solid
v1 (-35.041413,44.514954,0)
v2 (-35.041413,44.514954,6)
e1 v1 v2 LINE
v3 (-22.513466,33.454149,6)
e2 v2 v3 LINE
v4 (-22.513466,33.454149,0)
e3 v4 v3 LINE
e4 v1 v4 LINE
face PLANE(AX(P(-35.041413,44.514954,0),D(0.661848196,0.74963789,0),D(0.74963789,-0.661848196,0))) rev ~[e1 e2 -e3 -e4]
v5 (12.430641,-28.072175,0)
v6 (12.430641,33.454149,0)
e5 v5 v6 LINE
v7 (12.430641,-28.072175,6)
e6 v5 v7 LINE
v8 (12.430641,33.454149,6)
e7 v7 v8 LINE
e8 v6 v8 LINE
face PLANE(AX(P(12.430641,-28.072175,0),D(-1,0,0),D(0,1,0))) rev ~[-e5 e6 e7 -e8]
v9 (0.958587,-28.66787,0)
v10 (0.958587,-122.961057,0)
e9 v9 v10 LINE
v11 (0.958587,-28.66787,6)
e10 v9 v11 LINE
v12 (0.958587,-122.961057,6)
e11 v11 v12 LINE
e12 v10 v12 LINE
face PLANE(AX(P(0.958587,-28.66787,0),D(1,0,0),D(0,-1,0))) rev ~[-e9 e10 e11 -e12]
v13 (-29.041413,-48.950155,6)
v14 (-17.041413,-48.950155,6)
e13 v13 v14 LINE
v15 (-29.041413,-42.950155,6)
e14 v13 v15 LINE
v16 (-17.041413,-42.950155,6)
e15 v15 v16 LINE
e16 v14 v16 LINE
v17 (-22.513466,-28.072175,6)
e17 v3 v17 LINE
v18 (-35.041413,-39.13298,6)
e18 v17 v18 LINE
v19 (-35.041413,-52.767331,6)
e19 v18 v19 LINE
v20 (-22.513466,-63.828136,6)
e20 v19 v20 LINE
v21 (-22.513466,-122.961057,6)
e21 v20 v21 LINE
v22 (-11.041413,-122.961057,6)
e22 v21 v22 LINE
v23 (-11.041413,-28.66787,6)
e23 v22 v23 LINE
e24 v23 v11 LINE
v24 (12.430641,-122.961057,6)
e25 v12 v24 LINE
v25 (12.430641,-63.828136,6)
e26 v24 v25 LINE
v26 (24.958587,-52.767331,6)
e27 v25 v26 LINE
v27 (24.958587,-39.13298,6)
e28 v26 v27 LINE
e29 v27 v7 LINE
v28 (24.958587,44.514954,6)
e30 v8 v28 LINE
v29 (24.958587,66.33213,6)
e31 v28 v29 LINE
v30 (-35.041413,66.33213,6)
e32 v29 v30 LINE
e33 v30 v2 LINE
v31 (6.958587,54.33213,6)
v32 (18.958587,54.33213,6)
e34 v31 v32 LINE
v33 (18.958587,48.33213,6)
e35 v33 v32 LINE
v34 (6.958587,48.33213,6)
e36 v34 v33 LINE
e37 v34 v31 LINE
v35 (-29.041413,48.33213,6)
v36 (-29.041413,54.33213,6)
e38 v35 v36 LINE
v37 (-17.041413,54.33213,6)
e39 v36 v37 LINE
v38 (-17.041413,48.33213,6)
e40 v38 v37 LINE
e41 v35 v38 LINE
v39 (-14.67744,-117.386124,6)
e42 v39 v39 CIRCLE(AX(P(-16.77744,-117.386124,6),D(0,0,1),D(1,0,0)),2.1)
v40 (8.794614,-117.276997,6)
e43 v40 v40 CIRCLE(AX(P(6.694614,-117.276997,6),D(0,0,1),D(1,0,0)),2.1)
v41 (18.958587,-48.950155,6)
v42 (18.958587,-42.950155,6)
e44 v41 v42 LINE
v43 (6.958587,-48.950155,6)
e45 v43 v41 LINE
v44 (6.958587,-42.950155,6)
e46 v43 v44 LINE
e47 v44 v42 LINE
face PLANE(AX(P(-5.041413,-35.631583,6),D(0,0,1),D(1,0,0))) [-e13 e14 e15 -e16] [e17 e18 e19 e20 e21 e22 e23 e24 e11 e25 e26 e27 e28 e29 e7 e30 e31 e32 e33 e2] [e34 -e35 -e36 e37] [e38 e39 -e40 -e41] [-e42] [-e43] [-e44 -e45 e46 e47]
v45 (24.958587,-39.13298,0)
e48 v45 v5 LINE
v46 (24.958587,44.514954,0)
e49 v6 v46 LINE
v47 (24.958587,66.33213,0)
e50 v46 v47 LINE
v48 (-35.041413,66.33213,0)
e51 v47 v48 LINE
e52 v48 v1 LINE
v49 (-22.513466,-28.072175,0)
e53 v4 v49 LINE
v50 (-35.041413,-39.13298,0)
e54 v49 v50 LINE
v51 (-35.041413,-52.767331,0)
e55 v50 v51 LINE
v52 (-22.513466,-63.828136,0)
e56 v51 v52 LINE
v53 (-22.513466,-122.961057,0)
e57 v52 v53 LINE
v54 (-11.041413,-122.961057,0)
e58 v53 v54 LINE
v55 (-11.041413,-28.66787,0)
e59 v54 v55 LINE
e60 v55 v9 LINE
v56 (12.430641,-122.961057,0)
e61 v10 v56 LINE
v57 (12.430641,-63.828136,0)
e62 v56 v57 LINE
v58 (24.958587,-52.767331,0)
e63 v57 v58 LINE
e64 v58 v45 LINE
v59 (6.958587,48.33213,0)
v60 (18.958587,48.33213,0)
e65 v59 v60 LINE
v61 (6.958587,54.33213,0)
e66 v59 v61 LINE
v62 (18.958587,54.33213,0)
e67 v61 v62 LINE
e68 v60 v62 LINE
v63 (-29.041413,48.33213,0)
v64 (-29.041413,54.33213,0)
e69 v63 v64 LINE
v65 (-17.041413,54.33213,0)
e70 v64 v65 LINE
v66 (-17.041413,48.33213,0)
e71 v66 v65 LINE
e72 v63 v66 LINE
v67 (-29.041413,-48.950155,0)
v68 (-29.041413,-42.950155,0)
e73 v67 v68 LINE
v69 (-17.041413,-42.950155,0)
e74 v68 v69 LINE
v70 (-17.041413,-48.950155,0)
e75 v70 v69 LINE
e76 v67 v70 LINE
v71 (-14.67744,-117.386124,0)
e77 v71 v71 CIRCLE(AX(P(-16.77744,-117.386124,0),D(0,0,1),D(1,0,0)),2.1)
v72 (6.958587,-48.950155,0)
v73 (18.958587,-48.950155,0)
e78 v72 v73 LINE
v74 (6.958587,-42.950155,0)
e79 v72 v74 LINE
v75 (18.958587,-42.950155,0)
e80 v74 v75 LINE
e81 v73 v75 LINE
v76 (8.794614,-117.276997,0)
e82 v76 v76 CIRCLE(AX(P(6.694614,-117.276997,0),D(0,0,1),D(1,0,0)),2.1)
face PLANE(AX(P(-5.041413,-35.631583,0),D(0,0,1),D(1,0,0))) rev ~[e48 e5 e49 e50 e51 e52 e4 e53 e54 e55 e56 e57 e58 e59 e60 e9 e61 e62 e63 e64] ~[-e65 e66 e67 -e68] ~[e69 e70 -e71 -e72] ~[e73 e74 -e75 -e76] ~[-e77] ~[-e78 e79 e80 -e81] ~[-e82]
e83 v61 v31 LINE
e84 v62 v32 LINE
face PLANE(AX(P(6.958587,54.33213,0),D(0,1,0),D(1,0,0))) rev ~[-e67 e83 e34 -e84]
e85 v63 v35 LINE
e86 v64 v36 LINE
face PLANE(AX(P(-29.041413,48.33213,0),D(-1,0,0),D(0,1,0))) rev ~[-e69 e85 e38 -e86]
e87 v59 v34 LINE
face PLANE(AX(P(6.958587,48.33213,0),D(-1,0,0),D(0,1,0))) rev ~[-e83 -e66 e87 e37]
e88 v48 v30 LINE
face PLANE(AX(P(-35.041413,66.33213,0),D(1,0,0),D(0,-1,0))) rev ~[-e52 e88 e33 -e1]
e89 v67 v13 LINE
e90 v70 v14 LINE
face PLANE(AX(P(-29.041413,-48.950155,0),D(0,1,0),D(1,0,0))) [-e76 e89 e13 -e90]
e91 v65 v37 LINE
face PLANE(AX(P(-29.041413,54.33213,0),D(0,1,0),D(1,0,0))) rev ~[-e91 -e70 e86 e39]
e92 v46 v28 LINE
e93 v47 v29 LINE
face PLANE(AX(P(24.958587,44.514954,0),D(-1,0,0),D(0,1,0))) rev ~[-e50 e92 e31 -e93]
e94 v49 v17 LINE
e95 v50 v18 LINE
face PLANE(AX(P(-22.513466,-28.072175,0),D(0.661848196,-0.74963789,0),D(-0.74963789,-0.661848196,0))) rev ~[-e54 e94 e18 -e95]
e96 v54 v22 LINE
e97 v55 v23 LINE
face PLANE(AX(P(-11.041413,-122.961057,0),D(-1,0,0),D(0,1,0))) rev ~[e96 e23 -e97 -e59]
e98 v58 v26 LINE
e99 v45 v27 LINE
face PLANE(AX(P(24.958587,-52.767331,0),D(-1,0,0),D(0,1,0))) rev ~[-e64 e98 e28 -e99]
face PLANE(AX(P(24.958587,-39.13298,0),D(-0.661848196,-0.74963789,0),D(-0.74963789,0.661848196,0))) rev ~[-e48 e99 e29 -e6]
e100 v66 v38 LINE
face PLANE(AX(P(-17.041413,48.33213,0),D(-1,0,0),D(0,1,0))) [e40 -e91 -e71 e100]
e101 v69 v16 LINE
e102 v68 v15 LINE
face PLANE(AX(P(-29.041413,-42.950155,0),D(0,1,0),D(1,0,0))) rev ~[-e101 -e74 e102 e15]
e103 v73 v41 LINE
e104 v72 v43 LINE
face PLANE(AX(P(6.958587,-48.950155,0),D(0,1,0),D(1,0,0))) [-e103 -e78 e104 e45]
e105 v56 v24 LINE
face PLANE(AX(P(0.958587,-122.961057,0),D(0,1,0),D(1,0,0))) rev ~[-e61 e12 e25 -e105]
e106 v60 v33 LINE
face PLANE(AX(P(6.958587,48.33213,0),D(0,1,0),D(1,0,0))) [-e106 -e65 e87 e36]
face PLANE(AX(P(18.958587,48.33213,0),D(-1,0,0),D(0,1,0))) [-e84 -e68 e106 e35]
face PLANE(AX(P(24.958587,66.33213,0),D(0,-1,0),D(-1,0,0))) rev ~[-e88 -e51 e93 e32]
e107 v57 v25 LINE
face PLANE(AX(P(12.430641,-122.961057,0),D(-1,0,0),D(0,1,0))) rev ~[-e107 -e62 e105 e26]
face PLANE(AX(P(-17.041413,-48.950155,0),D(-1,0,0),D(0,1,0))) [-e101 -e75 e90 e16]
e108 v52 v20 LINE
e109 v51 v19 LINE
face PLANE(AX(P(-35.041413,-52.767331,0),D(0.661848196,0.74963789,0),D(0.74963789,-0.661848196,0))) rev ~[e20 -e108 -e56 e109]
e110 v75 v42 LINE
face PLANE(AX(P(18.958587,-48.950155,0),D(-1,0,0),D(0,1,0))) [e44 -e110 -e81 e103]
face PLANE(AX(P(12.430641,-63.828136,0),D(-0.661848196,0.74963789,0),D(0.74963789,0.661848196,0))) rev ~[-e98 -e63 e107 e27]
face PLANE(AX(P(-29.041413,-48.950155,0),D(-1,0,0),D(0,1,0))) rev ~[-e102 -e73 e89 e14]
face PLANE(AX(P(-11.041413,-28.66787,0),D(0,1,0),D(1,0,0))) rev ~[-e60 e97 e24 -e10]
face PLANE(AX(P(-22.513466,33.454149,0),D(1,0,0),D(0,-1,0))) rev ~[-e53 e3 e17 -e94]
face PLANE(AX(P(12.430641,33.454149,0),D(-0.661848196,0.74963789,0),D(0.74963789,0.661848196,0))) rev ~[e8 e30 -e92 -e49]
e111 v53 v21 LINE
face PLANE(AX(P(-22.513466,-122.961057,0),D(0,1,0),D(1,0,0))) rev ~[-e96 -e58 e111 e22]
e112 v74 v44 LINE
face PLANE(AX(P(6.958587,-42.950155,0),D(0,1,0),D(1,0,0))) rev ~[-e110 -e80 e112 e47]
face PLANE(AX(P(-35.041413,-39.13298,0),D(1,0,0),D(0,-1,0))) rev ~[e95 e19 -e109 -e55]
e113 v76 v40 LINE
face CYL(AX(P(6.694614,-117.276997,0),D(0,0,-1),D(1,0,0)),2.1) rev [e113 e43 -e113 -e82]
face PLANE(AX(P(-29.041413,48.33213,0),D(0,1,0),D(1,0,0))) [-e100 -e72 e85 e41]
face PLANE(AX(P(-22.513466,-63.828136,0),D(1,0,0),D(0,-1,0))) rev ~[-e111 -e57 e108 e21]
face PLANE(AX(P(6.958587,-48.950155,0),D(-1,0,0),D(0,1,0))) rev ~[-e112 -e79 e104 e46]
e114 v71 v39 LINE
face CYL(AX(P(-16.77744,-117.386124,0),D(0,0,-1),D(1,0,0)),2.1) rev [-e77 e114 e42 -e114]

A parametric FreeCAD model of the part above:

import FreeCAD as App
import Part
import Sketcher
Q = App.Units.Quantity

doc = App.newDocument("Part")
body = doc.addObject("PartDesign::Body", "Body")

sketch1 = body.newObject("Sketcher::SketchObject", "Sketch")
sketch1.AttachmentSupport = (doc.getObject("XY_Plane"), [""])
sketch1.MapMode = "FlatFace"
sketch1.addGeometry(Part.LineSegment(App.Vector(25, 66.3, 0), App.Vector(-35, 66.3, 0)), False)
sketch1.addGeometry(Part.LineSegment(App.Vector(-35, 66.3, 0), App.Vector(-35, 44.5, 0)), False)
sketch1.addGeometry(Part.LineSegment(App.Vector(-35, 44.5, 0), App.Vector(-22.5, 33.5, 0)), False)
sketch1.addGeometry(Part.LineSegment(App.Vector(-22.5, 33.5, 0), App.Vector(-22.5, -28.1, 0)), False)
sketch1.addGeometry(Part.LineSegment(App.Vector(-22.5, -28.1, 0), App.Vector(-35, -39.1, 0)), False)
sketch1.addGeometry(Part.LineSegment(App.Vector(-35, -39.1, 0), App.Vector(-35, -52.8, 0)), False)
sketch1.addGeometry(Part.LineSegment(App.Vector(-35, -52.8, 0), App.Vector(-22.5, -63.8, 0)), False)
sketch1.addGeometry(Part.LineSegment(App.Vector(-22.5, -63.8, 0), App.Vector(-22.5, -123, 0)), False)
sketch1.addGeometry(Part.LineSegment(App.Vector(-22.5, -123, 0), App.Vector(-11, -123, 0)), False)
sketch1.addGeometry(Part.LineSegment(App.Vector(-11, -123, 0), App.Vector(-11, -28.7, 0)), False)
sketch1.addGeometry(Part.LineSegment(App.Vector(-11, -28.7, 0), App.Vector(1, -28.7, 0)), False)
sketch1.addGeometry(Part.LineSegment(App.Vector(1, -28.7, 0), App.Vector(1, -123, 0)), False)
sketch1.addGeometry(Part.LineSegment(App.Vector(1, -123, 0), App.Vector(12.4, -123, 0)), False)
sketch1.addGeometry(Part.LineSegment(App.Vector(12.4, -123, 0), App.Vector(12.4, -63.8, 0)), False)
sketch1.addGeometry(Part.LineSegment(App.Vector(12.4, -63.8, 0), App.Vector(25, -52.8, 0)), False)
sketch1.addGeometry(Part.LineSegment(App.Vector(25, -52.8, 0), App.Vector(25, -39.1, 0)), False)
sketch1.addGeometry(Part.LineSegment(App.Vector(25, -39.1, 0), App.Vector(12.4, -28.1, 0)), False)
sketch1.addGeometry(Part.LineSegment(App.Vector(12.4, -28.1, 0), App.Vector(12.4, 33.5, 0)), False)
sketch1.addGeometry(Part.LineSegment(App.Vector(12.4, 33.5, 0), App.Vector(25, 44.5, 0)), False)
sketch1.addGeometry(Part.LineSegment(App.Vector(25, 44.5, 0), App.Vector(25, 66.3, 0)), False)
sketch1.addGeometry(Part.Circle(App.Vector(-16.8, -117.4, 0), App.Vector(0, 0, 1), 2.1), False)
sketch1.addGeometry(Part.LineSegment(App.Vector(-17, -49, 0), App.Vector(-29, -49, 0)), False)
sketch1.addGeometry(Part.LineSegment(App.Vector(-29, -49, 0), App.Vector(-29, -43, 0)), False)
sketch1.addGeometry(Part.LineSegment(App.Vector(-29, -43, 0), App.Vector(-17, -43, 0)), False)
sketch1.addGeometry(Part.LineSegment(App.Vector(-17, -43, 0), App.Vector(-17, -49, 0)), False)
sketch1.addGeometry(Part.Circle(App.Vector(6.7, -117.3, 0), App.Vector(0, 0, 1), 2.1), False)
sketch1.addGeometry(Part.LineSegment(App.Vector(19, -49, 0), App.Vector(7, -49, 0)), False)
sketch1.addGeometry(Part.LineSegment(App.Vector(7, -49, 0), App.Vector(7, -43, 0)), False)
sketch1.addGeometry(Part.LineSegment(App.Vector(7, -43, 0), App.Vector(19, -43, 0)), False)
sketch1.addGeometry(Part.LineSegment(App.Vector(19, -43, 0), App.Vector(19, -49, 0)), False)
sketch1.addGeometry(Part.LineSegment(App.Vector(-17, 48.3, 0), App.Vector(-29, 48.3, 0)), False)
sketch1.addGeometry(Part.LineSegment(App.Vector(-29, 48.3, 0), App.Vector(-29, 54.3, 0)), False)
sketch1.addGeometry(Part.LineSegment(App.Vector(-29, 54.3, 0), App.Vector(-17, 54.3, 0)), False)
sketch1.addGeometry(Part.LineSegment(App.Vector(-17, 54.3, 0), App.Vector(-17, 48.3, 0)), False)
sketch1.addGeometry(Part.LineSegment(App.Vector(19, 48.3, 0), App.Vector(7, 48.3, 0)), False)
sketch1.addGeometry(Part.LineSegment(App.Vector(7, 48.3, 0), App.Vector(7, 54.3, 0)), False)
sketch1.addGeometry(Part.LineSegment(App.Vector(7, 54.3, 0), App.Vector(19, 54.3, 0)), False)
sketch1.addGeometry(Part.LineSegment(App.Vector(19, 54.3, 0), App.Vector(19, 48.3, 0)), False)
sketch1.addConstraint(Sketcher.Constraint("Coincident", 0, 2, 1, 1))
sketch1.addConstraint(Sketcher.Constraint("Coincident", 1, 2, 2, 1))
sketch1.addConstraint(Sketcher.Constraint("Coincident", 2, 2, 3, 1))
sketch1.addConstraint(Sketcher.Constraint("Coincident", 3, 2, 4, 1))
sketch1.addConstraint(Sketcher.Constraint("Coincident", 4, 2, 5, 1))
sketch1.addConstraint(Sketcher.Constraint("Coincident", 5, 2, 6, 1))
sketch1.addConstraint(Sketcher.Constraint("Coincident", 6, 2, 7, 1))
sketch1.addConstraint(Sketcher.Constraint("Coincident", 7, 2, 8, 1))
sketch1.addConstraint(Sketcher.Constraint("Coincident", 8, 2, 9, 1))
sketch1.addConstraint(Sketcher.Constraint("Coincident", 9, 2, 10, 1))
sketch1.addConstraint(Sketcher.Constraint("Coincident", 10, 2, 11, 1))
sketch1.addConstraint(Sketcher.Constraint("Coincident", 11, 2, 12, 1))
sketch1.addConstraint(Sketcher.Constraint("Coincident", 12, 2, 13, 1))
sketch1.addConstraint(Sketcher.Constraint("Coincident", 13, 2, 14, 1))
sketch1.addConstraint(Sketcher.Constraint("Coincident", 14, 2, 15, 1))
sketch1.addConstraint(Sketcher.Constraint("Coincident", 15, 2, 16, 1))
sketch1.addConstraint(Sketcher.Constraint("Coincident", 16, 2, 17, 1))
sketch1.addConstraint(Sketcher.Constraint("Coincident", 17, 2, 18, 1))
sketch1.addConstraint(Sketcher.Constraint("Coincident", 18, 2, 19, 1))
sketch1.addConstraint(Sketcher.Constraint("Coincident", 19, 2, 0, 1))
sketch1.addConstraint(Sketcher.Constraint("Coincident", 21, 2, 22, 1))
sketch1.addConstraint(Sketcher.Constraint("Coincident", 22, 2, 23, 1))
sketch1.addConstraint(Sketcher.Constraint("Coincident", 23, 2, 24, 1))
sketch1.addConstraint(Sketcher.Constraint("Coincident", 24, 2, 21, 1))
sketch1.addConstraint(Sketcher.Constraint("Coincident", 26, 2, 27, 1))
sketch1.addConstraint(Sketcher.Constraint("Coincident", 27, 2, 28, 1))
sketch1.addConstraint(Sketcher.Constraint("Coincident", 28, 2, 29, 1))
sketch1.addConstraint(Sketcher.Constraint("Coincident", 29, 2, 26, 1))
sketch1.addConstraint(Sketcher.Constraint("Coincident", 30, 2, 31, 1))
sketch1.addConstraint(Sketcher.Constraint("Coincident", 31, 2, 32, 1))
sketch1.addConstraint(Sketcher.Constraint("Coincident", 32, 2, 33, 1))
sketch1.addConstraint(Sketcher.Constraint("Coincident", 33, 2, 30, 1))
sketch1.addConstraint(Sketcher.Constraint("Coincident", 34, 2, 35, 1))
sketch1.addConstraint(Sketcher.Constraint("Coincident", 35, 2, 36, 1))
sketch1.addConstraint(Sketcher.Constraint("Coincident", 36, 2, 37, 1))
sketch1.addConstraint(Sketcher.Constraint("Coincident", 37, 2, 34, 1))
sketch1.addConstraint(Sketcher.Constraint("Horizontal", 0))
sketch1.addConstraint(Sketcher.Constraint("Vertical", 1))
sketch1.addConstraint(Sketcher.Constraint("Vertical", 3))
sketch1.addConstraint(Sketcher.Constraint("Vertical", 5))
sketch1.addConstraint(Sketcher.Constraint("Vertical", 7))
sketch1.addConstraint(Sketcher.Constraint("Horizontal", 8))
sketch1.addConstraint(Sketcher.Constraint("Vertical", 9))
sketch1.addConstraint(Sketcher.Constraint("Horizontal", 10))
sketch1.addConstraint(Sketcher.Constraint("Vertical", 11))
sketch1.addConstraint(Sketcher.Constraint("Horizontal", 12))
sketch1.addConstraint(Sketcher.Constraint("Vertical", 13))
sketch1.addConstraint(Sketcher.Constraint("Vertical", 15))
sketch1.addConstraint(Sketcher.Constraint("Vertical", 17))
sketch1.addConstraint(Sketcher.Constraint("Vertical", 19))
sketch1.addConstraint(Sketcher.Constraint("Horizontal", 21))
sketch1.addConstraint(Sketcher.Constraint("Vertical", 22))
sketch1.addConstraint(Sketcher.Constraint("Horizontal", 23))
sketch1.addConstraint(Sketcher.Constraint("Vertical", 24))
sketch1.addConstraint(Sketcher.Constraint("Horizontal", 26))
sketch1.addConstraint(Sketcher.Constraint("Vertical", 27))
sketch1.addConstraint(Sketcher.Constraint("Horizontal", 28))
sketch1.addConstraint(Sketcher.Constraint("Vertical", 29))
sketch1.addConstraint(Sketcher.Constraint("Horizontal", 30))
sketch1.addConstraint(Sketcher.Constraint("Vertical", 31))
sketch1.addConstraint(Sketcher.Constraint("Horizontal", 32))
sketch1.addConstraint(Sketcher.Constraint("Vertical", 33))
sketch1.addConstraint(Sketcher.Constraint("Horizontal", 34))
sketch1.addConstraint(Sketcher.Constraint("Vertical", 35))
sketch1.addConstraint(Sketcher.Constraint("Horizontal", 36))
sketch1.addConstraint(Sketcher.Constraint("Vertical", 37))
sketch1.addConstraint(Sketcher.Constraint("Equal", 20, 25))
sketch1.addConstraint(Sketcher.Constraint("Parallel", 2, 6))
sketch1.addConstraint(Sketcher.Constraint("Parallel", 4, 14))
sketch1.addConstraint(Sketcher.Constraint("Parallel", 6, 16))
sketch1.addConstraint(Sketcher.Constraint("Parallel", 14, 18))
sketch1.addConstraint(Sketcher.Constraint("Horizontal", 8, 2, 11, 2))
sketch1.addConstraint(Sketcher.Constraint("Horizontal", 6, 2, 13, 2))
sketch1.addConstraint(Sketcher.Constraint("Horizontal", 5, 2, 14, 2))
sketch1.addConstraint(Sketcher.Constraint("Horizontal", 4, 2, 15, 2))
sketch1.addConstraint(Sketcher.Constraint("Horizontal", 3, 2, 16, 2))
sketch1.addConstraint(Sketcher.Constraint("Horizontal", 2, 2, 17, 2))
sketch1.addConstraint(Sketcher.Constraint("Horizontal", 1, 2, 18, 2))
sketch1.addConstraint(Sketcher.Constraint("Horizontal", 24, 2, 26, 2))
sketch1.addConstraint(Sketcher.Constraint("Horizontal", 23, 2, 27, 2))
sketch1.addConstraint(Sketcher.Constraint("Horizontal", 33, 2, 34, 2))
sketch1.addConstraint(Sketcher.Constraint("Horizontal", 32, 2, 35, 2))
sketch1.addConstraint(Sketcher.Constraint("Vertical", 1, 2, 4, 2))
sketch1.addConstraint(Sketcher.Constraint("Vertical", 3, 2, 6, 2))
sketch1.addConstraint(Sketcher.Constraint("Vertical", 13, 2, 16, 2))
sketch1.addConstraint(Sketcher.Constraint("Vertical", 22, 2, 30, 2))
sketch1.addConstraint(Sketcher.Constraint("Vertical", 24, 2, 32, 2))
sketch1.addConstraint(Sketcher.Constraint("Vertical", 27, 2, 34, 2))
sketch1.addConstraint(Sketcher.Constraint("Vertical", 29, 2, 36, 2))
sketch1.addConstraint(Sketcher.Constraint("Equal", 8, 12))
sketch1.addConstraint(Sketcher.Constraint("Equal", 10, 21))
sketch1.addConstraint(Sketcher.Constraint("Equal", 23, 26))
sketch1.addConstraint(Sketcher.Constraint("Equal", 29, 31))
sketch1.addConstraint(Sketcher.Constraint("Diameter", 20, Q("4.2 mm")))
sketch1.addConstraint(Sketcher.Constraint("DistanceX", 0, 2, 0, 1, Q("60 mm")))
sketch1.addConstraint(Sketcher.Constraint("DistanceX", 10, 1, 10, 2, Q("12 mm")))
sketch1.addConstraint(Sketcher.Constraint("DistanceY", 22, 1, 22, 2, Q("6 mm")))
sketch1.addConstraint(Sketcher.Constraint("DistanceX", 5, 2, 21, 2, Q("6 mm")))
sketch1.addConstraint(Sketcher.Constraint("DistanceX", 26, 2, 14, 2, Q("18 mm")))
sketch1.addConstraint(Sketcher.Constraint("DistanceY", 30, 2, 0, 2, Q("18 mm")))
sketch1.addConstraint(Sketcher.Constraint("DistanceY", 5, 2, 5, 1, Q("13.634351 mm")))
sketch1.addConstraint(Sketcher.Constraint("DistanceY", 7, 2, 7, 1, Q("59.132921 mm")))
sketch1.addConstraint(Sketcher.Constraint("DistanceX", 8, 1, 8, 2, Q("11.472054 mm")))
sketch1.addConstraint(Sketcher.Constraint("DistanceY", 1, 2, 1, 1, Q("21.817175 mm")))
sketch1.addConstraint(Sketcher.Constraint("DistanceY", 3, 2, 3, 1, Q("61.526324 mm")))
sketch1.addConstraint(Sketcher.Constraint("DistanceY", 9, 1, 9, 2, Q("94.293186 mm")))
sketch1.addConstraint(Sketcher.Constraint("DistanceX", 20, 3, -1, 1, Q("16.77744 mm")))
sketch1.addConstraint(Sketcher.Constraint("DistanceY", -1, 1, 0, 2, Q("66.33213 mm")))
sketch1.addConstraint(Sketcher.Constraint("DistanceY", -1, 1, 2, 2, Q("33.454149 mm")))
sketch1.addConstraint(Sketcher.Constraint("DistanceX", -1, 1, 12, 2, Q("12.430641 mm")))
sketch1.addConstraint(Sketcher.Constraint("DistanceY", 25, 3, 1, 2, Q("161.791952 mm")))
sketch1.addConstraint(Sketcher.Constraint("DistanceX", 2, 2, 25, 3, Q("29.20808 mm")))
sketch1.addConstraint(Sketcher.Constraint("DistanceY", 20, 3, 3, 2, Q("89.313949 mm")))
sketch1.addConstraint(Sketcher.Constraint("DistanceY", 6, 2, 21, 2, Q("14.877981 mm")))
pad1 = body.newObject("PartDesign::Pad", "Pad")
pad1.Profile = sketch1
pad1.Length = 6

doc.recompute()
